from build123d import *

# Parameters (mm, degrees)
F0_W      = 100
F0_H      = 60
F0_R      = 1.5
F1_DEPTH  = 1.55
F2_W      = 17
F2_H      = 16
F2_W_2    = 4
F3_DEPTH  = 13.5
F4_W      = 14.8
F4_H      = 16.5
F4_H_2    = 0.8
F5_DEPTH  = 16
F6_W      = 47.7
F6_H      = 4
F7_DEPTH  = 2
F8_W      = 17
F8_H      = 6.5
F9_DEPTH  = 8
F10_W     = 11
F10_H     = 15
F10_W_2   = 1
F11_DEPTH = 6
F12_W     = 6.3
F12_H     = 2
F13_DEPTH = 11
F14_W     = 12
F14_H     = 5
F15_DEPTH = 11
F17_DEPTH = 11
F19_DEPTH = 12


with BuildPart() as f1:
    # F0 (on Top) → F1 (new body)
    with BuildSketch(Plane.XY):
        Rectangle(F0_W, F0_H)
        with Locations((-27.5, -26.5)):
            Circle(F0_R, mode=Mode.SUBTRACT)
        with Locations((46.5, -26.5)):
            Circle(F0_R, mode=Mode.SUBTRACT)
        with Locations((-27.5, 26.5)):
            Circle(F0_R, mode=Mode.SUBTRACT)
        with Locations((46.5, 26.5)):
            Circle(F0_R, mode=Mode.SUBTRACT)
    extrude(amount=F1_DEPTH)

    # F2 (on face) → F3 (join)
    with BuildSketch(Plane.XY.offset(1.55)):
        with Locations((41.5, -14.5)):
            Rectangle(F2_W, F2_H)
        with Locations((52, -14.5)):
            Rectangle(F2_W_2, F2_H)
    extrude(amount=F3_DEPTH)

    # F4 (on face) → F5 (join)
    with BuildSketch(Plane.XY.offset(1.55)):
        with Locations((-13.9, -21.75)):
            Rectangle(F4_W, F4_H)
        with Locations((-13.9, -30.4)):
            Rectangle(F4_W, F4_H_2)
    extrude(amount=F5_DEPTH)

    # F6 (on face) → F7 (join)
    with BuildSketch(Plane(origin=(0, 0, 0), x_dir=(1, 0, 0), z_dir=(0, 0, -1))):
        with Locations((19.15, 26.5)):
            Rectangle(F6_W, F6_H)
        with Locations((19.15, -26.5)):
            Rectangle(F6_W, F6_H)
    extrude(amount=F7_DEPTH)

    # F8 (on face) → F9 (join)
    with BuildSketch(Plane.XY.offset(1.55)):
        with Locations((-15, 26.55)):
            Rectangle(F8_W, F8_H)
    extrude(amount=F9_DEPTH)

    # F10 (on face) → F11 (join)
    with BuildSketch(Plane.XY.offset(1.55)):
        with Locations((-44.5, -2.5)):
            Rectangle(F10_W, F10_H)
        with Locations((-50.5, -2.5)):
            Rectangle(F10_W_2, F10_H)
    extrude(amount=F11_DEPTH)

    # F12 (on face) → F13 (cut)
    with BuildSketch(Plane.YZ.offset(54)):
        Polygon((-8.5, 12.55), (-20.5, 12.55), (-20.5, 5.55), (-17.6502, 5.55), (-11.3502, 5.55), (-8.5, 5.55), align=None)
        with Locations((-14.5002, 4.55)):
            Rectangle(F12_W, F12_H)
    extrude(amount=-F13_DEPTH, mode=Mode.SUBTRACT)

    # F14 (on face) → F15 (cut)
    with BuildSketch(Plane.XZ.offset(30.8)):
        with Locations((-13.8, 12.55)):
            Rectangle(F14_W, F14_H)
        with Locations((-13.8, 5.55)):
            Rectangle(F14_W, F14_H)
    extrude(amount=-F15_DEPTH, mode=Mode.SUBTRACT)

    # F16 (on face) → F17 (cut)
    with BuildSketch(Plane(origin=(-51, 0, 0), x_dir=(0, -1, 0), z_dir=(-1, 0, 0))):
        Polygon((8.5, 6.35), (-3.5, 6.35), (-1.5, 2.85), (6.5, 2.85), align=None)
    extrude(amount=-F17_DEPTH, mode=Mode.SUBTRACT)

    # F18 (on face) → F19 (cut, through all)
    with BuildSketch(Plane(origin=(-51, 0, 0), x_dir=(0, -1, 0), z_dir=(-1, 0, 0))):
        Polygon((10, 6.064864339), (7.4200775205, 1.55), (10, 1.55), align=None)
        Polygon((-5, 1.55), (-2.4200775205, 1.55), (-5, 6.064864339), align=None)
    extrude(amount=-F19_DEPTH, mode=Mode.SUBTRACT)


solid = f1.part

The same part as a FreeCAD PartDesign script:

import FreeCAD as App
import Part
import Sketcher

doc = App.newDocument("Part")
body = doc.addObject("PartDesign::Body", "Body")

sketch1 = doc.addObject("Sketcher::SketchObject", "Sketch")
body.addObject(sketch1)
sketch1.AttachmentSupport = (doc.XY_Plane, [""])
sketch1.MapMode = "FlatFace"
sketch1.addGeometry([
    Part.LineSegment(App.Vector(-50, 30, 0), App.Vector(-50, -30, 0)),
    Part.LineSegment(App.Vector(-50, -30, 0), App.Vector(50, -30, 0)),
    Part.LineSegment(App.Vector(50, -30, 0), App.Vector(50, 30, 0)),
    Part.LineSegment(App.Vector(50, 30, 0), App.Vector(-50, 30, 0)),
    Part.Circle(App.Vector(-27.5, -26.5, 0), App.Vector(0, 0, 1), 1.5),
    Part.Circle(App.Vector(46.5, -26.5, 0), App.Vector(0, 0, 1), 1.5),
    Part.Circle(App.Vector(-27.5, 26.5, 0), App.Vector(0, 0, 1), 1.5),
    Part.Circle(App.Vector(46.5, 26.5, 0), App.Vector(0, 0, 1), 1.5),
], False)
sketch1.addConstraint([
    Sketcher.Constraint("Coincident", 0, 2, 1, 1),
    Sketcher.Constraint("Coincident", 1, 2, 2, 1),
    Sketcher.Constraint("Coincident", 2, 2, 3, 1),
    Sketcher.Constraint("Coincident", 3, 2, 0, 1),
    Sketcher.Constraint("Vertical", 0),
    Sketcher.Constraint("Horizontal", 1),
    Sketcher.Constraint("Vertical", 2),
    Sketcher.Constraint("Horizontal", 3),
    Sketcher.Constraint("Equal", 4, 5),
    Sketcher.Constraint("Equal", 5, 6),
    Sketcher.Constraint("Equal", 6, 7),
    Sketcher.Constraint("Symmetric", 0, 2, 2, 2, -1, 1),
    Sketcher.Constraint("Symmetric", 4, 3, 6, 3, -1),
    Sketcher.Constraint("Symmetric", 5, 3, 7, 3, -1),
    Sketcher.Constraint("Horizontal", 4, 3, 5, 3),
    Sketcher.Constraint("Diameter", 4, 3.0),
    Sketcher.Constraint("DistanceX", 1, 1, 1, 2, 100.0),
    Sketcher.Constraint("DistanceY", 0, 2, 0, 1, 60.0),
    Sketcher.Constraint("DistanceX", 4, 3, 5, 3, 74.0),
    Sketcher.Constraint("DistanceY", 4, 3, 6, 3, 53.0),
    Sketcher.Constraint("DistanceX", 4, 3, -1, 1, 27.5),
])
pad1 = doc.addObject("PartDesign::Pad", "Pad")
body.addObject(pad1)
pad1.Profile = sketch1
pad1.Length = 1.55

sketch2 = doc.addObject("Sketcher::SketchObject", "Sketch001")
body.addObject(sketch2)
sketch2.AttachmentSupport = (doc.XY_Plane, [""])
sketch2.MapMode = "FlatFace"
sketch2.AttachmentOffset = App.Placement(App.Vector(0, 0, 1.55), App.Rotation())
sketch2.addGeometry([
    Part.LineSegment(App.Vector(33, -6, 0), App.Vector(33, -22, 0)),
    Part.LineSegment(App.Vector(33, -22, 0), App.Vector(54, -22, 0)),
    Part.LineSegment(App.Vector(54, -22, 0), App.Vector(54, -6, 0)),
    Part.LineSegment(App.Vector(54, -6, 0), App.Vector(33, -6, 0)),
], False)
sketch2.addConstraint([
    Sketcher.Constraint("Coincident", 0, 2, 1, 1),
    Sketcher.Constraint("Coincident", 1, 2, 2, 1),
    Sketcher.Constraint("Coincident", 2, 2, 3, 1),
    Sketcher.Constraint("Coincident", 3, 2, 0, 1),
    Sketcher.Constraint("Vertical", 0),
    Sketcher.Constraint("Horizontal", 1),
    Sketcher.Constraint("Vertical", 2),
    Sketcher.Constraint("Horizontal", 3),
    Sketcher.Constraint("DistanceX", 1, 1, 1, 2, 21.0),
    Sketcher.Constraint("DistanceY", 0, 2, 0, 1, 16.0),
    Sketcher.Constraint("DistanceX", -1, 1, 0, 2, 33.0),
    Sketcher.Constraint("DistanceY", 0, 2, -1, 1, 22.5),
])
pad2 = doc.addObject("PartDesign::Pad", "Pad001")
body.addObject(pad2)
pad2.Profile = sketch2
pad2.Length = 13.5

sketch3 = doc.addObject("Sketcher::SketchObject", "Sketch002")
body.addObject(sketch3)
sketch3.AttachmentSupport = (doc.XY_Plane, [""])
sketch3.MapMode = "FlatFace"
sketch3.AttachmentOffset = App.Placement(App.Vector(0, 0, 1.55), App.Rotation())
sketch3.addGeometry([
    Part.LineSegment(App.Vector(-21, -14, 0), App.Vector(-21, -31, 0)),
    Part.LineSegment(App.Vector(-21, -31, 0), App.Vector(-6, -31, 0)),
    Part.LineSegment(App.Vector(-6, -31, 0), App.Vector(-6, -14, 0)),
    Part.LineSegment(App.Vector(-6, -14, 0), App.Vector(-21, -14, 0)),
], False)
sketch3.addConstraint([
    Sketcher.Constraint("Coincident", 0, 2, 1, 1),
    Sketcher.Constraint("Coincident", 1, 2, 2, 1),
    Sketcher.Constraint("Coincident", 2, 2, 3, 1),
    Sketcher.Constraint("Coincident", 3, 2, 0, 1),
    Sketcher.Constraint("Vertical", 0),
    Sketcher.Constraint("Horizontal", 1),
    Sketcher.Constraint("Vertical", 2),
    Sketcher.Constraint("Horizontal", 3),
    Sketcher.Constraint("DistanceX", 1, 1, 1, 2, 14.8),
    Sketcher.Constraint("DistanceY", 0, 2, 0, 1, 17.3),
    Sketcher.Constraint("DistanceX", 0, 2, -1, 1, 21.3),
    Sketcher.Constraint("DistanceY", 0, 2, -1, 1, 30.8),
])
pad3 = doc.addObject("PartDesign::Pad", "Pad002")
body.addObject(pad3)
pad3.Profile = sketch3
pad3.Length = 16

sketch4 = doc.addObject("Sketcher::SketchObject", "Sketch003")
body.addObject(sketch4)
sketch4.AttachmentSupport = (doc.XY_Plane, [""])
sketch4.MapMode = "FlatFace"
sketch4.addGeometry([
    Part.LineSegment(App.Vector(-4.7, -28.5, 0), App.Vector(-4.7, -24.5, 0)),
    Part.LineSegment(App.Vector(-4.7, -24.5, 0), App.Vector(43, -24.5, 0)),
    Part.LineSegment(App.Vector(43, -24.5, 0), App.Vector(43, -28.5, 0)),
    Part.LineSegment(App.Vector(43, -28.5, 0), App.Vector(-4.7, -28.5, 0)),
    Part.LineSegment(App.Vector(-4.7, 24.5, 0), App.Vector(-4.7, 28.5, 0)),
    Part.LineSegment(App.Vector(-4.7, 28.5, 0), App.Vector(43, 28.5, 0)),
    Part.LineSegment(App.Vector(43, 28.5, 0), App.Vector(43, 24.5, 0)),
    Part.LineSegment(App.Vector(43, 24.5, 0), App.Vector(-4.7, 24.5, 0)),
], False)
sketch4.addConstraint([
    Sketcher.Constraint("Coincident", 0, 2, 1, 1),
    Sketcher.Constraint("Coincident", 1, 2, 2, 1),
    Sketcher.Constraint("Coincident", 2, 2, 3, 1),
    Sketcher.Constraint("Coincident", 3, 2, 0, 1),
    Sketcher.Constraint("Coincident", 4, 2, 5, 1),
    Sketcher.Constraint("Coincident", 5, 2, 6, 1),
    Sketcher.Constraint("Coincident", 6, 2, 7, 1),
    Sketcher.Constraint("Coincident", 7, 2, 4, 1),
    Sketcher.Constraint("Vertical", 0),
    Sketcher.Constraint("Horizontal", 1),
    Sketcher.Constraint("Vertical", 2),
    Sketcher.Constraint("Horizontal", 3),
    Sketcher.Constraint("Vertical", 4),
    Sketcher.Constraint("Horizontal", 5),
    Sketcher.Constraint("Vertical", 6),
    Sketcher.Constraint("Horizontal", 7),
    Sketcher.Constraint("Symmetric", 3, 2, 4, 2, -1),
    Sketcher.Constraint("Symmetric", 1, 2, 6, 2, -1),
    Sketcher.Constraint("DistanceY", 0, 1, 0, 2, 4.0),
    Sketcher.Constraint("DistanceX", 1, 1, 1, 2, 47.7),
    Sketcher.Constraint("DistanceX", -1, 1, 1, 2, 43.0),
    Sketcher.Constraint("DistanceY", 0, 2, 4, 2, 53.0),
])
pad4 = doc.addObject("PartDesign::Pad", "Pad003")
body.addObject(pad4)
pad4.Profile = sketch4
pad4.Length = 2
pad4.Reversed = True

sketch5 = doc.addObject("Sketcher::SketchObject", "Sketch004")
body.addObject(sketch5)
sketch5.AttachmentSupport = (doc.XY_Plane, [""])
sketch5.MapMode = "FlatFace"
sketch5.AttachmentOffset = App.Placement(App.Vector(0, 0, 1.55), App.Rotation())
sketch5.addGeometry([
    Part.LineSegment(App.Vector(-24, 30, 0), App.Vector(-24, 23, 0)),
    Part.LineSegment(App.Vector(-24, 23, 0), App.Vector(-6, 23, 0)),
    Part.LineSegment(App.Vector(-6, 23, 0), App.Vector(-6, 30, 0)),
    Part.LineSegment(App.Vector(-6, 30, 0), App.Vector(-24, 30, 0)),
], False)
sketch5.addConstraint([
    Sketcher.Constraint("Coincident", 0, 2, 1, 1),
    Sketcher.Constraint("Coincident", 1, 2, 2, 1),
    Sketcher.Constraint("Coincident", 2, 2, 3, 1),
    Sketcher.Constraint("Coincident", 3, 2, 0, 1),
    Sketcher.Constraint("Vertical", 0),
    Sketcher.Constraint("Horizontal", 1),
    Sketcher.Constraint("Vertical", 2),
    Sketcher.Constraint("Horizontal", 3),
    Sketcher.Constraint("DistanceX", 1, 1, 1, 2, 17.0),
    Sketcher.Constraint("DistanceY", 0, 2, 0, 1, 6.5),
    Sketcher.Constraint("DistanceX", 0, 2, -1, 1, 23.5),
    Sketcher.Constraint("DistanceY", -1, 1, 0, 2, 23.3),
])
pad5 = doc.addObject("PartDesign::Pad", "Pad004")
body.addObject(pad5)
pad5.Profile = sketch5
pad5.Length = 8

sketch6 = doc.addObject("Sketcher::SketchObject", "Sketch005")
body.addObject(sketch6)
sketch6.AttachmentSupport = (doc.XY_Plane, [""])
sketch6.MapMode = "FlatFace"
sketch6.AttachmentOffset = App.Placement(App.Vector(0, 0, 1.55), App.Rotation())
sketch6.addGeometry([
    Part.LineSegment(App.Vector(-39, -10, 0), App.Vector(-39, 5, 0)),
    Part.LineSegment(App.Vector(-39, 5, 0), App.Vector(-51, 5, 0)),
    Part.LineSegment(App.Vector(-51, 5, 0), App.Vector(-51, -10, 0)),
    Part.LineSegment(App.Vector(-51, -10, 0), App.Vector(-39, -10, 0)),
], False)
sketch6.addConstraint([
    Sketcher.Constraint("Coincident", 0, 2, 1, 1),
    Sketcher.Constraint("Coincident", 1, 2, 2, 1),
    Sketcher.Constraint("Coincident", 2, 2, 3, 1),
    Sketcher.Constraint("Coincident", 3, 2, 0, 1),
    Sketcher.Constraint("Vertical", 0),
    Sketcher.Constraint("Horizontal", 1),
    Sketcher.Constraint("Vertical", 2),
    Sketcher.Constraint("Horizontal", 3),
    Sketcher.Constraint("DistanceX", 1, 2, 1, 1, 12.0),
    Sketcher.Constraint("DistanceY", 0, 1, 0, 2, 15.0),
    Sketcher.Constraint("DistanceX", 0, 2, -1, 1, 39.0),
    Sketcher.Constraint("DistanceY", -1, 1, 0, 2, 5.0),
])
pad6 = doc.addObject("PartDesign::Pad", "Pad005")
body.addObject(pad6)
pad6.Profile = sketch6
pad6.Length = 6

sketch7 = doc.addObject("Sketcher::SketchObject", "Sketch006")
body.addObject(sketch7)
sketch7.AttachmentSupport = (doc.YZ_Plane, [""])
sketch7.MapMode = "FlatFace"
sketch7.AttachmentOffset = App.Placement(App.Vector(0, 0, 54), App.Rotation())
sketch7.addGeometry([
    Part.LineSegment(App.Vector(-8.5, 12.6, 0), App.Vector(-20.5, 12.6, 0)),
    Part.LineSegment(App.Vector(-20.5, 12.6, 0), App.Vector(-20.5, 5.5, 0)),
    Part.LineSegment(App.Vector(-20.5, 5.5, 0), App.Vector(-17.7, 5.5, 0)),
    Part.LineSegment(App.Vector(-17.7, 5.5, 0), App.Vector(-17.7, 3.5, 0)),
    Part.LineSegment(App.Vector(-17.7, 3.5, 0), App.Vector(-11.4, 3.5, 0)),
    Part.LineSegment(App.Vector(-11.4, 3.5, 0), App.Vector(-11.4, 5.5, 0)),
    Part.LineSegment(App.Vector(-11.4, 5.5, 0), App.Vector(-8.5, 5.5, 0)),
    Part.LineSegment(App.Vector(-8.5, 5.5, 0), App.Vector(-8.5, 12.6, 0)),
], False)
sketch7.addConstraint([
    Sketcher.Constraint("Coincident", 0, 2, 1, 1),
    Sketcher.Constraint("Coincident", 1, 2, 2, 1),
    Sketcher.Constraint("Coincident", 2, 2, 3, 1),
    Sketcher.Constraint("Coincident", 3, 2, 4, 1),
    Sketcher.Constraint("Coincident", 4, 2, 5, 1),
    Sketcher.Constraint("Coincident", 5, 2, 6, 1),
    Sketcher.Constraint("Coincident", 6, 2, 7, 1),
    Sketcher.Constraint("Coincident", 7, 2, 0, 1),
    Sketcher.Constraint("Horizontal", 0),
    Sketcher.Constraint("Vertical", 1),
    Sketcher.Constraint("Horizontal", 2),
    Sketcher.Constraint("Vertical", 3),
    Sketcher.Constraint("Horizontal", 4),
    Sketcher.Constraint("Vertical", 5),
    Sketcher.Constraint("Horizontal", 6),
    Sketcher.Constraint("Vertical", 7),
    Sketcher.Constraint("Horizontal", 2, 2, 5, 2),
    Sketcher.Constraint("DistanceX", 0, 2, 0, 1, 12.0),
    Sketcher.Constraint("DistanceY", 1, 2, 1, 1, 7.0),
    Sketcher.Constraint("DistanceY", 3, 2, 3, 1, 2.0),
    Sketcher.Constraint("DistanceX", 4, 1, 4, 2, 6.3),
    Sketcher.Constraint("DistanceX", 0, 2, -1, 1, 20.5),
    Sketcher.Constraint("DistanceY", -1, 1, 0, 2, 12.55),
    Sketcher.Constraint("DistanceX", 2, 1, 2, 2, 2.8498),
])
pocket1 = doc.addObject("PartDesign::Pocket", "Pocket")
body.addObject(pocket1)
pocket1.Profile = sketch7
pocket1.Length = 11

sketch8 = doc.addObject("Sketcher::SketchObject", "Sketch007")
body.addObject(sketch8)
sketch8.AttachmentSupport = (doc.XZ_Plane, [""])
sketch8.MapMode = "FlatFace"
sketch8.AttachmentOffset = App.Placement(App.Vector(0, 0, 30.8), App.Rotation())
sketch8.addGeometry([
    Part.LineSegment(App.Vector(-20, 15, 0), App.Vector(-20, 10, 0)),
    Part.LineSegment(App.Vector(-20, 10, 0), App.Vector(-8, 10, 0)),
    Part.LineSegment(App.Vector(-8, 10, 0), App.Vector(-8, 15, 0)),
    Part.LineSegment(App.Vector(-8, 15, 0), App.Vector(-20, 15, 0)),
    Part.LineSegment(App.Vector(-20, 8, 0), App.Vector(-20, 3, 0)),
    Part.LineSegment(App.Vector(-20, 3, 0), App.Vector(-8, 3, 0)),
    Part.LineSegment(App.Vector(-8, 3, 0), App.Vector(-8, 8, 0)),
    Part.LineSegment(App.Vector(-8, 8, 0), App.Vector(-20, 8, 0)),
], False)
sketch8.addConstraint([
    Sketcher.Constraint("Coincident", 0, 2, 1, 1),
    Sketcher.Constraint("Coincident", 1, 2, 2, 1),
    Sketcher.Constraint("Coincident", 2, 2, 3, 1),
    Sketcher.Constraint("Coincident", 3, 2, 0, 1),
    Sketcher.Constraint("Coincident", 4, 2, 5, 1),
    Sketcher.Constraint("Coincident", 5, 2, 6, 1),
    Sketcher.Constraint("Coincident", 6, 2, 7, 1),
    Sketcher.Constraint("Coincident", 7, 2, 4, 1),
    Sketcher.Constraint("Vertical", 0),
    Sketcher.Constraint("Horizontal", 1),
    Sketcher.Constraint("Vertical", 2),
    Sketcher.Constraint("Horizontal", 3),
    Sketcher.Constraint("Vertical", 4),
    Sketcher.Constraint("Horizontal", 5),
    Sketcher.Constraint("Vertical", 6),
    Sketcher.Constraint("Horizontal", 7),
    Sketcher.Constraint("Vertical", 3, 2, 4, 2),
    Sketcher.Constraint("Vertical", 2, 2, 5, 2),
    Sketcher.Constraint("Equal", 2, 4),
    Sketcher.Constraint("DistanceX", 1, 1, 1, 2, 12.0),
    Sketcher.Constraint("DistanceY", 0, 2, 0, 1, 5.0),
    Sketcher.Constraint("DistanceY", 4, 2, 0, 2, 7.0),
    Sketcher.Constraint("DistanceX", 0, 2, -1, 1, 19.8),
    Sketcher.Constraint("DistanceY", -1, 1, 0, 2, 10.05),
])
pocket2 = doc.addObject("PartDesign::Pocket", "Pocket001")
body.addObject(pocket2)
pocket2.Profile = sketch8
pocket2.Length = 11

sketch9 = doc.addObject("Sketcher::SketchObject", "Sketch008")
body.addObject(sketch9)
sketch9.AttachmentSupport = (doc.YZ_Plane, [""])
sketch9.MapMode = "FlatFace"
sketch9.AttachmentOffset = App.Placement(App.Vector(0, 0, -51), App.Rotation())
sketch9.addGeometry([
    Part.LineSegment(App.Vector(-8.5, 6.3, 0), App.Vector(3.5, 6.3, 0)),
    Part.LineSegment(App.Vector(3.5, 6.3, 0), App.Vector(1.5, 2.9, 0)),
    Part.LineSegment(App.Vector(1.5, 2.9, 0), App.Vector(-6.5, 2.9, 0)),
    Part.LineSegment(App.Vector(-6.5, 2.9, 0), App.Vector(-8.5, 6.3, 0)),
], False)
sketch9.addConstraint([
    Sketcher.Constraint("Coincident", 0, 2, 1, 1),
    Sketcher.Constraint("Coincident", 1, 2, 2, 1),
    Sketcher.Constraint("Coincident", 2, 2, 3, 1),
    Sketcher.Constraint("Coincident", 3, 2, 0, 1),
    Sketcher.Constraint("Horizontal", 0),
    Sketcher.Constraint("Horizontal", 2),
    Sketcher.Constraint("Equal", 1, 3),
    Sketcher.Constraint("DistanceX", 0, 1, 0, 2, 12.0),
    Sketcher.Constraint("DistanceX", 2, 2, 2, 1, 8.0),
    Sketcher.Constraint("DistanceX", -1, 1, 0, 2, 3.5),
    Sketcher.Constraint("DistanceY", 1, 2, 0, 2, 3.5),
    Sketcher.Constraint("DistanceY", -1, 1, 0, 2, 6.35),
])
pocket3 = doc.addObject("PartDesign::Pocket", "Pocket002")
body.addObject(pocket3)
pocket3.Profile = sketch9
pocket3.Length = 11
pocket3.Reversed = True

sketch10 = doc.addObject("Sketcher::SketchObject", "Sketch009")
body.addObject(sketch10)
sketch10.AttachmentSupport = (doc.YZ_Plane, [""])
sketch10.MapMode = "FlatFace"
sketch10.AttachmentOffset = App.Placement(App.Vector(0, 0, -51), App.Rotation())
sketch10.addGeometry([
    Part.LineSegment(App.Vector(-10, 6.1, 0), App.Vector(-7.4, 1.6, 0)),
    Part.LineSegment(App.Vector(-7.4, 1.6, 0), App.Vector(-10, 1.6, 0)),
    Part.LineSegment(App.Vector(-10, 1.6, 0), App.Vector(-10, 6.1, 0)),
    Part.LineSegment(App.Vector(5, 1.6, 0), App.Vector(2.4, 1.6, 0)),
    Part.LineSegment(App.Vector(2.4, 1.6, 0), App.Vector(5, 6.1, 0)),
    Part.LineSegment(App.Vector(5, 6.1, 0), App.Vector(5, 1.6, 0)),
], False)
sketch10.addConstraint([
    Sketcher.Constraint("Coincident", 0, 2, 1, 1),
    Sketcher.Constraint("Coincident", 1, 2, 2, 1),
    Sketcher.Constraint("Coincident", 2, 2, 0, 1),
    Sketcher.Constraint("Coincident", 3, 2, 4, 1),
    Sketcher.Constraint("Coincident", 4, 2, 5, 1),
    Sketcher.Constraint("Coincident", 5, 2, 3, 1),
    Sketcher.Constraint("Horizontal", 1),
    Sketcher.Constraint("Vertical", 2),
    Sketcher.Constraint("Horizontal", 3),
    Sketcher.Constraint("Vertical", 5),
    Sketcher.Constraint("Horizontal", 1, 2, 3, 2),
    Sketcher.Constraint("Horizontal", 2, 2, 4, 2),
    Sketcher.Constraint("Equal", 1, 3),
    Sketcher.Constraint("DistanceX", 1, 2, -1, 1, 10.0),
    Sketcher.Constraint("DistanceX", -1, 1, 4, 2, 5.0),
    Sketcher.Constraint("Distance", 0, 5.2),
    Sketcher.Constraint("DistanceY", -1, 1, 0, 2, 1.55),
    Sketcher.Constraint("DistanceX", 1, 2, 1, 1, 2.579922),
])
pocket4 = doc.addObject("PartDesign::Pocket", "Pocket003")
body.addObject(pocket4)
pocket4.Profile = sketch10
pocket4.Length = 12
pocket4.Reversed = True

doc.recompute()
